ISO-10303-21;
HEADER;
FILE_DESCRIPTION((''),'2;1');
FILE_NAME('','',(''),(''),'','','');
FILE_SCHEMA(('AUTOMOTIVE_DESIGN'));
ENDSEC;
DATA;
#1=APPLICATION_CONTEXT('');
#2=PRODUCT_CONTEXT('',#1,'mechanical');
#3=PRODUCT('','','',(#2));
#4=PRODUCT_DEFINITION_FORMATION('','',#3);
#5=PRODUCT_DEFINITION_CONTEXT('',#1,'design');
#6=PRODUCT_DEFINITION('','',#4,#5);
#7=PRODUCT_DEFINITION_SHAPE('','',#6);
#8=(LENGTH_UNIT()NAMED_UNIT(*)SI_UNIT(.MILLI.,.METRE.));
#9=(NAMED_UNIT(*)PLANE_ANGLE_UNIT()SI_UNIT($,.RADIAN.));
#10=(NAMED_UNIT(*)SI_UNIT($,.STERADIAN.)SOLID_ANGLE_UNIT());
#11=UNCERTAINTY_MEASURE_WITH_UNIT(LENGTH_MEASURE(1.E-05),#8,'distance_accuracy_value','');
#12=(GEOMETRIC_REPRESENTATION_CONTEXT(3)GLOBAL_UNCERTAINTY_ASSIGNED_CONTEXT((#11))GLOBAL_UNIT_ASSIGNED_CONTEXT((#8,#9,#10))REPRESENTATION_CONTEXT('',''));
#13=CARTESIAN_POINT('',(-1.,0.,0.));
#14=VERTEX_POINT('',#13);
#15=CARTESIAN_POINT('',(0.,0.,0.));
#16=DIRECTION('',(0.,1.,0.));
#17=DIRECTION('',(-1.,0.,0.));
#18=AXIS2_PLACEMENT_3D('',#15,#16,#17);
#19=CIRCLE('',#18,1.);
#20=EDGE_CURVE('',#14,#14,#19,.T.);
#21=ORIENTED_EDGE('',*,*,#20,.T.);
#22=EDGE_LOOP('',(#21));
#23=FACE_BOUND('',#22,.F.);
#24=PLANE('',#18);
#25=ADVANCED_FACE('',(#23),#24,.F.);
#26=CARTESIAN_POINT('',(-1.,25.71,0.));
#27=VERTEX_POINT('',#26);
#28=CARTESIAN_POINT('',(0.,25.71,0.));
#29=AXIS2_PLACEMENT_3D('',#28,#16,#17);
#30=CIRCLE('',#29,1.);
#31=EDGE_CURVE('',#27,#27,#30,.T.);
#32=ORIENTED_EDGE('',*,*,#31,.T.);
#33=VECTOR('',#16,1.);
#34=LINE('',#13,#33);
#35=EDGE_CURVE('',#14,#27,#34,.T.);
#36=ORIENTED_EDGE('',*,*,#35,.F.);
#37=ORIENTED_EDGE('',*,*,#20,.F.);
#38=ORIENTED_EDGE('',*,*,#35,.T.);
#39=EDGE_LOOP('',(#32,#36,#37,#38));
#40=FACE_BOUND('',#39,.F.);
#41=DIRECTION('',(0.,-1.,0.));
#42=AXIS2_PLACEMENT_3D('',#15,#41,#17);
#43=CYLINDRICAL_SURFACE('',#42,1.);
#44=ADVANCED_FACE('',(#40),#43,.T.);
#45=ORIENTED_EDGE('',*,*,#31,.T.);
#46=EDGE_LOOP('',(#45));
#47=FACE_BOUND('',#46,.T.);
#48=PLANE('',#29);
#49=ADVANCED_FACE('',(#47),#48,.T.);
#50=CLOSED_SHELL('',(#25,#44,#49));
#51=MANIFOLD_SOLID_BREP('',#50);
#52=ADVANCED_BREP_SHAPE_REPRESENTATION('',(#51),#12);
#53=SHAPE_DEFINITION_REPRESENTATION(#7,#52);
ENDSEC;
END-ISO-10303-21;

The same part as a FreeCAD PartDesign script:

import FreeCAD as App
import Part
import Sketcher

doc = App.newDocument("Part")
body = doc.addObject("PartDesign::Body", "Body")

sketch1 = body.newObject("Sketcher::SketchObject", "Sketch")
sketch1.AttachmentSupport = (doc.getObject("XZ_Plane"), [""])
sketch1.MapMode = "FlatFace"
sketch1.addGeometry(Part.Circle(App.Vector(0, 0, 0), App.Vector(0, 0, 1), 1), False)
sketch1.addConstraint(Sketcher.Constraint("Coincident", 0, 3, -1, 1))
sketch1.addConstraint(Sketcher.Constraint("Diameter", 0, 2.0))
pad1 = body.newObject("PartDesign::Pad", "Pad")
pad1.Profile = sketch1
pad1.Length = 25.71
pad1.Reversed = True

doc.recompute()
